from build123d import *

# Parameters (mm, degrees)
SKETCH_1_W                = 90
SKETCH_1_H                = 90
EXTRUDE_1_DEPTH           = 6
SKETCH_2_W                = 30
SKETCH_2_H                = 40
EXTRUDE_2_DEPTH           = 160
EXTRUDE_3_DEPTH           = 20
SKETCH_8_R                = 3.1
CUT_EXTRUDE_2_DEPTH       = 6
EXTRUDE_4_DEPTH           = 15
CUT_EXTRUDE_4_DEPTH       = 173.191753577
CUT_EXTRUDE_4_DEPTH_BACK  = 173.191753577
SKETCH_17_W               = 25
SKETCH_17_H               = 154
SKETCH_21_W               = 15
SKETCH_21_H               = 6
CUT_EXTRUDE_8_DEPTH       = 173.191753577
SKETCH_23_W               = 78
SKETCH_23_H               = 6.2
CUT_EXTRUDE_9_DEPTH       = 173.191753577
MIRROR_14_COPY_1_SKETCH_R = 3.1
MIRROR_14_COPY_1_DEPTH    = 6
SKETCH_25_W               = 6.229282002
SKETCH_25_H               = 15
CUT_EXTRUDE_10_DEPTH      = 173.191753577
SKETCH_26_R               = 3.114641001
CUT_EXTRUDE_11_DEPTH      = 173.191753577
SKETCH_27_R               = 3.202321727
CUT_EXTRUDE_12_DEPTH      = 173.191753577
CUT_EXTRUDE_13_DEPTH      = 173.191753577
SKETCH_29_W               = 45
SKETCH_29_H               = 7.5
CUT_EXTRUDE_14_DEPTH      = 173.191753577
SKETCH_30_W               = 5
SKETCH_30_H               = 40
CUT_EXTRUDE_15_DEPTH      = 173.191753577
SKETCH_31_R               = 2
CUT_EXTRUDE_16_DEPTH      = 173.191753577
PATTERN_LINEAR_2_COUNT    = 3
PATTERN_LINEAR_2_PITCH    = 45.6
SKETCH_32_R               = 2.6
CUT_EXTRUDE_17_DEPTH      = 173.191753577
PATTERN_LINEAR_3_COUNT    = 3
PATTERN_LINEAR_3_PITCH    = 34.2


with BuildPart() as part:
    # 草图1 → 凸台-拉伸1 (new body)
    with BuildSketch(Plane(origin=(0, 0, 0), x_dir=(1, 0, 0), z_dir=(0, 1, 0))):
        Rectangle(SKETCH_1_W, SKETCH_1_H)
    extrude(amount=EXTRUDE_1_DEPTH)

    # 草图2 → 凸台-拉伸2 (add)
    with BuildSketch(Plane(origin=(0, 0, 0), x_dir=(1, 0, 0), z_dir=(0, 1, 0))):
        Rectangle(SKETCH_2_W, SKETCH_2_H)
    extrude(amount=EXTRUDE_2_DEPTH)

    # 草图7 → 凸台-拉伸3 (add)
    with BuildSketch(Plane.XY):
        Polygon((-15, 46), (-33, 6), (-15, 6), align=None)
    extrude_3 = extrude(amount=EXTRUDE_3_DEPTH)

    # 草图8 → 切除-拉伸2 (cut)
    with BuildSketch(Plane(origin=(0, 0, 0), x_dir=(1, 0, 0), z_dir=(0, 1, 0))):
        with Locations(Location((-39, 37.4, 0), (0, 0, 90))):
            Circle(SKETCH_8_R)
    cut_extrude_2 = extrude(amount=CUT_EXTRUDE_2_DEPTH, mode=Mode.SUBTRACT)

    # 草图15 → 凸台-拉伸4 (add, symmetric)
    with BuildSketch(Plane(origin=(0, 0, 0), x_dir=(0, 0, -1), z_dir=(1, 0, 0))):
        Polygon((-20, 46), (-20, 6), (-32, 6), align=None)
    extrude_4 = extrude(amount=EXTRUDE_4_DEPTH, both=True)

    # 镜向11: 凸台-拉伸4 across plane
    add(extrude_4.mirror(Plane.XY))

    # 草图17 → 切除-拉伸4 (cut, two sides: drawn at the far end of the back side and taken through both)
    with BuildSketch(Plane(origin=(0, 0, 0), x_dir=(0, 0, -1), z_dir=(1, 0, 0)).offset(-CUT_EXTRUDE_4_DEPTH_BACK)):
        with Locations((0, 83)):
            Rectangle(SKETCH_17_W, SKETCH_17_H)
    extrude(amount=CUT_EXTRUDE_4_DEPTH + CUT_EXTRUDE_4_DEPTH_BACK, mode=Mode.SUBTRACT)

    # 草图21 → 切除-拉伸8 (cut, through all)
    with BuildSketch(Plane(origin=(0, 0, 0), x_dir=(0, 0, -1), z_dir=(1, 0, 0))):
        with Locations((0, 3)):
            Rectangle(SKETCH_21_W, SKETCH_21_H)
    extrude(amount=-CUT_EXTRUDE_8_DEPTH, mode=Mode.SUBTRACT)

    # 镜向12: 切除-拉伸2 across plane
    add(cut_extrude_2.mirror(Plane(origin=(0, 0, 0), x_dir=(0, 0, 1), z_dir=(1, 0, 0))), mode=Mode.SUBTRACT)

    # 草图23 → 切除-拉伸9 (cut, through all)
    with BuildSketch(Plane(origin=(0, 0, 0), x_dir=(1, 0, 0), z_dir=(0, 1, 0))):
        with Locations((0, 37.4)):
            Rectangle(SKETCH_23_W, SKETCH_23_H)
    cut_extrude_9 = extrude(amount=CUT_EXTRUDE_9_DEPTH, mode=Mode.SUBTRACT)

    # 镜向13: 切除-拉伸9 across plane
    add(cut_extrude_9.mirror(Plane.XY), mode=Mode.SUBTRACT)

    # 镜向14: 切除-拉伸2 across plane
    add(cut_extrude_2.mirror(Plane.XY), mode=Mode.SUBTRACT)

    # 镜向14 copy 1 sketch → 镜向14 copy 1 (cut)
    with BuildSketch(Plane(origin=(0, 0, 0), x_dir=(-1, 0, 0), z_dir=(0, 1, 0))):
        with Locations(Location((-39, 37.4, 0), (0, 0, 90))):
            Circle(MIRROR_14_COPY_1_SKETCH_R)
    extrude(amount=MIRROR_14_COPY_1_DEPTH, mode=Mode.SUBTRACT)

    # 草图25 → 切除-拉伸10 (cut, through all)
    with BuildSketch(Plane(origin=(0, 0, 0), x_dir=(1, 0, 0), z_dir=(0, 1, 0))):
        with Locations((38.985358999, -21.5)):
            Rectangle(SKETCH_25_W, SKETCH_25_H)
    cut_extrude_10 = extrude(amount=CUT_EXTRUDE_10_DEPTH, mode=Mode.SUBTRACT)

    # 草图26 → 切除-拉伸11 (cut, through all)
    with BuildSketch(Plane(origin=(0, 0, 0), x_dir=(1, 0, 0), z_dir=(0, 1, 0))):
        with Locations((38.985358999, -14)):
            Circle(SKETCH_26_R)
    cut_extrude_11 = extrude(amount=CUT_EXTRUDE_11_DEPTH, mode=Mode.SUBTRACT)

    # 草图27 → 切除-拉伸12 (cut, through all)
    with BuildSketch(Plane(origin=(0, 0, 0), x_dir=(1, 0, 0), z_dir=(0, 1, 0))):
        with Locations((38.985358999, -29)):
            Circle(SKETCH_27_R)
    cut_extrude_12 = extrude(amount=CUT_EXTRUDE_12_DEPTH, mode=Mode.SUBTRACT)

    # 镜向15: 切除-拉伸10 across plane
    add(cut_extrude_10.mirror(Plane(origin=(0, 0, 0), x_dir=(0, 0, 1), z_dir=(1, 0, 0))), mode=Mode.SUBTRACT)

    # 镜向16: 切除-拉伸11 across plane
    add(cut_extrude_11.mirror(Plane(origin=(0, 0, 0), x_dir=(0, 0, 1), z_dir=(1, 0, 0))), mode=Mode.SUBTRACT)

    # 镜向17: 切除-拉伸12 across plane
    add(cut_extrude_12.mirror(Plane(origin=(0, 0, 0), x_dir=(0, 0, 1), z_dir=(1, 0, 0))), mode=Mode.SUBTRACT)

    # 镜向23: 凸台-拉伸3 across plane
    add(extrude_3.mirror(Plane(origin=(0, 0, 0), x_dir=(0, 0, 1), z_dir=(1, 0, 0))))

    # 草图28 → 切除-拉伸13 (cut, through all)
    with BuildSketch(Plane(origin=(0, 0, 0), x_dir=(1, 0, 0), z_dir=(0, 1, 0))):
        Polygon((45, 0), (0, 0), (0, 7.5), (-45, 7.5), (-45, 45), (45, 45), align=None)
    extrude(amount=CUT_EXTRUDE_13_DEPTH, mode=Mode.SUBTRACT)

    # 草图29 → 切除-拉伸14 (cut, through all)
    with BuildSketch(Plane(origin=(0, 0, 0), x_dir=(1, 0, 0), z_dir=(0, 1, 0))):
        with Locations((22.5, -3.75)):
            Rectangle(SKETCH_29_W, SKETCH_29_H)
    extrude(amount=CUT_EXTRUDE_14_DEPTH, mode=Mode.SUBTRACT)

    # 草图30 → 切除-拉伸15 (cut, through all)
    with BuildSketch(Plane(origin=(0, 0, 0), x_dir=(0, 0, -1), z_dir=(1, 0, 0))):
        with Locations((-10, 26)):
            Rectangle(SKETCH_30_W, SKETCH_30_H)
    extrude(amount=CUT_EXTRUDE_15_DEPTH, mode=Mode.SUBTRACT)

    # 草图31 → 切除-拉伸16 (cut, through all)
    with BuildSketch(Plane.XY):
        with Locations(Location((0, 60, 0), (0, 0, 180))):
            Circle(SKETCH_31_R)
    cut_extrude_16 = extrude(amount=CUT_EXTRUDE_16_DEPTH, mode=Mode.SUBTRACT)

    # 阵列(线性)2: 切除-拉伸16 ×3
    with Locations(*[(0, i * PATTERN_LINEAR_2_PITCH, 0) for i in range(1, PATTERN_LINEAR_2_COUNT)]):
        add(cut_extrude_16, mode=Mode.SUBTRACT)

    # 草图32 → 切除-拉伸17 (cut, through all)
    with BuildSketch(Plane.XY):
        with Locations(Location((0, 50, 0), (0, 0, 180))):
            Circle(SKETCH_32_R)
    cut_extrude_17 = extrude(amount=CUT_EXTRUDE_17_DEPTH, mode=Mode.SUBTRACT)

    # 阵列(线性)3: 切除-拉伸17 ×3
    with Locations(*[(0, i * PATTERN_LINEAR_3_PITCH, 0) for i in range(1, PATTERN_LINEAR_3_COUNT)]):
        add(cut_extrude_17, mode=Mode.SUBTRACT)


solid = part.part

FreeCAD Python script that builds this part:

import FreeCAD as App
import Part
import Sketcher
Q = App.Units.Quantity


def add_polygon(sketch, points):
    """Adds a closed chain of lines whose ends are joined by coincident constraints."""
    first, n = sketch.GeometryCount, len(points)
    for a, b in zip(points, points[1:] + points[:1]):
        sketch.addGeometry(Part.LineSegment(App.Vector(*a, 0), App.Vector(*b, 0)), False)
    for i in range(n):
        sketch.addConstraint(Sketcher.Constraint("Coincident", first + i, 2, first + (i + 1) % n, 1))

doc = App.newDocument("Part")
body = doc.addObject("PartDesign::Body", "Body")

# Sketch on XZ plane
sketch1 = body.newObject("Sketcher::SketchObject", "Sketch")
sketch1.AttachmentSupport = (doc.getObject("XZ_Plane"), [""])
sketch1.MapMode = "FlatFace"
add_polygon(sketch1, [(-45, -45), (-45, 45), (45, 45), (45, -45)])  # lines 0-3
sketch1.addConstraint([
    Sketcher.Constraint("Vertical", 0),
    Sketcher.Constraint("Horizontal", 1),
    Sketcher.Constraint("Vertical", 2),
    Sketcher.Constraint("Horizontal", 3),
    Sketcher.Constraint("Symmetric", 0, 2, 2, 2, -1, 1),
    Sketcher.Constraint("Equal", 3, 0),
    Sketcher.Constraint("DistanceX", 1, 1, 1, 2, Q("90 mm")),
])
pad1 = body.newObject("PartDesign::Pad", "Pad")
pad1.Profile = sketch1
pad1.Length = 6
pad1.Reversed = True

# Sketch on XZ plane
sketch2 = body.newObject("Sketcher::SketchObject", "Sketch001")
sketch2.AttachmentSupport = (doc.getObject("XZ_Plane"), [""])
sketch2.MapMode = "FlatFace"
add_polygon(sketch2, [(-15, -20), (-15, 20), (15, 20), (15, -20)])  # lines 0-3
sketch2.addConstraint([
    Sketcher.Constraint("Vertical", 0),
    Sketcher.Constraint("Horizontal", 1),
    Sketcher.Constraint("Vertical", 2),
    Sketcher.Constraint("Horizontal", 3),
    Sketcher.Constraint("Symmetric", 0, 2, 2, 2, -1, 1),
    Sketcher.Constraint("DistanceX", 1, 1, 1, 2, Q("30 mm")),
    Sketcher.Constraint("DistanceY", 0, 1, 0, 2, Q("40 mm")),
])
pad2 = body.newObject("PartDesign::Pad", "Pad001")
pad2.Profile = sketch2
pad2.Length = 160
pad2.Reversed = True

# Sketch on XY plane
sketch3 = body.newObject("Sketcher::SketchObject", "Sketch002")
sketch3.AttachmentSupport = (doc.getObject("XY_Plane"), [""])
sketch3.MapMode = "FlatFace"
add_polygon(sketch3, [(-15, 46), (-33, 6), (-15, 6)])  # lines 0-2
sketch3.addConstraint([
    Sketcher.Constraint("Horizontal", 1),
    Sketcher.Constraint("Vertical", 2),
    Sketcher.Constraint("DistanceX", 1, 1, 1, 2, Q("18 mm")),
    Sketcher.Constraint("DistanceY", 2, 1, 2, 2, Q("40 mm")),
    Sketcher.Constraint("DistanceX", 0, 2, -1, 1, Q("33 mm")),
    Sketcher.Constraint("DistanceY", -1, 1, 0, 2, Q("6 mm")),
])
pad3 = body.newObject("PartDesign::Pad", "Pad002")
pad3.Profile = sketch3
pad3.Length = 20

# Sketch on XZ plane
sketch4 = body.newObject("Sketcher::SketchObject", "Sketch003")
sketch4.AttachmentSupport = (doc.getObject("XZ_Plane"), [""])
sketch4.MapMode = "FlatFace"
sketch4.addGeometry(Part.Circle(App.Vector(-39, -37.4, 0), App.Vector(0, 0, 1), 3.1), False)
sketch4.addConstraint([
    Sketcher.Constraint("Diameter", 0, Q("6.2 mm")),
    Sketcher.Constraint("DistanceX", 0, 3, -1, 1, Q("39 mm")),
    Sketcher.Constraint("DistanceY", 0, 3, -1, 1, Q("37.4 mm")),
])
pocket1 = body.newObject("PartDesign::Pocket", "Pocket")
pocket1.Profile = sketch4
pocket1.Length = 6

# Sketch on YZ plane
sketch5 = body.newObject("Sketcher::SketchObject", "Sketch004")
sketch5.AttachmentSupport = (doc.getObject("YZ_Plane"), [""])
sketch5.MapMode = "FlatFace"
add_polygon(sketch5, [(6, 20), (46, 20), (6, 32)])  # lines 0-2
sketch5.addConstraint([
    Sketcher.Constraint("Horizontal", 0),
    Sketcher.Constraint("Vertical", 2),
    Sketcher.Constraint("DistanceX", 0, 1, 0, 2, Q("40 mm")),
    Sketcher.Constraint("DistanceY", 2, 2, 2, 1, Q("12 mm")),
    Sketcher.Constraint("DistanceX", -1, 1, 0, 2, Q("46 mm")),
    Sketcher.Constraint("DistanceY", -1, 1, 0, 2, Q("20 mm")),
])
pad4 = body.newObject("PartDesign::Pad", "Pad003")
pad4.Profile = sketch5
pad4.Length = 30
pad4.Midplane = True
doc.recompute()

mirrored = body.newObject("PartDesign::Mirrored", "Mirrored")
mirrored.Originals = [pad4]
mirrored.MirrorPlane = (doc.getObject("XY_Plane"), [""])
body.Tip = mirrored

# Sketch on YZ plane
sketch6 = body.newObject("Sketcher::SketchObject", "Sketch005")
sketch6.AttachmentSupport = (doc.getObject("YZ_Plane"), [""])
sketch6.MapMode = "FlatFace"
add_polygon(sketch6, [(160, 12), (6, 12), (6, -12), (160, -12)])  # lines 0-3
sketch6.addConstraint([
    Sketcher.Constraint("Horizontal", 0),
    Sketcher.Constraint("Vertical", 1),
    Sketcher.Constraint("Horizontal", 2),
    Sketcher.Constraint("Vertical", 3),
    Sketcher.Constraint("DistanceX", 0, 2, 0, 1, Q("154 mm")),
    Sketcher.Constraint("DistanceY", 1, 2, 1, 1, Q("25 mm")),
    Sketcher.Constraint("DistanceX", -1, 1, 0, 2, Q("6 mm")),
    Sketcher.Constraint("DistanceY", -1, 1, 0, 2, Q("12.5 mm")),
])
pocket2 = body.newObject("PartDesign::Pocket", "Pocket001")
pocket2.Profile = sketch6
pocket2.Type = "ThroughAll"
pocket2.Midplane = True

# Sketch on YZ plane
sketch7 = body.newObject("Sketcher::SketchObject", "Sketch006")
sketch7.AttachmentSupport = (doc.getObject("YZ_Plane"), [""])
sketch7.MapMode = "FlatFace"
add_polygon(sketch7, [(6, 8), (0, 8), (0, -8), (6, -8)])  # lines 0-3
sketch7.addConstraint([
    Sketcher.Constraint("Horizontal", 0),
    Sketcher.Constraint("Vertical", 1),
    Sketcher.Constraint("Horizontal", 2),
    Sketcher.Constraint("Vertical", 3),
    Sketcher.Constraint("Symmetric", 0, 2, 1, 2, -1, 1),
    Sketcher.Constraint("DistanceX", 0, 2, 0, 1, Q("6 mm")),
    Sketcher.Constraint("DistanceY", 1, 2, 1, 1, Q("15 mm")),
])
pocket3 = body.newObject("PartDesign::Pocket", "Pocket002")
pocket3.Profile = sketch7
pocket3.Type = "ThroughAll"
doc.recompute()

mirrored2 = body.newObject("PartDesign::Mirrored", "Mirrored001")
mirrored2.Originals = [pocket1]
mirrored2.MirrorPlane = (doc.getObject("YZ_Plane"), [""])
body.Tip = mirrored2

# Sketch on XZ plane
sketch8 = body.newObject("Sketcher::SketchObject", "Sketch007")
sketch8.AttachmentSupport = (doc.getObject("XZ_Plane"), [""])
sketch8.MapMode = "FlatFace"
add_polygon(sketch8, [(-39, -40), (-39, -34), (39, -34), (39, -40)])  # lines 0-3
sketch8.addConstraint([
    Sketcher.Constraint("Vertical", 0),
    Sketcher.Constraint("Horizontal", 1),
    Sketcher.Constraint("Vertical", 2),
    Sketcher.Constraint("Horizontal", 3),
    Sketcher.Constraint("DistanceX", 1, 1, 1, 2, Q("78 mm")),
    Sketcher.Constraint("DistanceY", 0, 1, 0, 2, Q("6.2 mm")),
    Sketcher.Constraint("DistanceX", 0, 2, -1, 1, Q("39 mm")),
    Sketcher.Constraint("DistanceY", 0, 2, -1, 1, Q("34.3 mm")),
])
pocket4 = body.newObject("PartDesign::Pocket", "Pocket003")
pocket4.Profile = sketch8
pocket4.Type = "ThroughAll"
doc.recompute()

mirrored3 = body.newObject("PartDesign::Mirrored", "Mirrored002")
mirrored3.Originals = [pocket4]
mirrored3.MirrorPlane = (doc.getObject("XY_Plane"), [""])
body.Tip = mirrored3
doc.recompute()

mirrored4 = body.newObject("PartDesign::Mirrored", "Mirrored003")
mirrored4.Originals = [pocket1]
mirrored4.MirrorPlane = (doc.getObject("XY_Plane"), [""])
body.Tip = mirrored4

# Sketch on XZ plane
sketch9 = body.newObject("Sketcher::SketchObject", "Sketch008")
sketch9.AttachmentSupport = (doc.getObject("XZ_Plane"), [""])
sketch9.MapMode = "FlatFace"
sketch9.addGeometry(Part.Circle(App.Vector(39, 37.4, 0), App.Vector(0, 0, 1), 3.1), False)
sketch9.addConstraint([
    Sketcher.Constraint("Diameter", 0, Q("6.2 mm")),
    Sketcher.Constraint("DistanceX", -1, 1, 0, 3, Q("39 mm")),
    Sketcher.Constraint("DistanceY", -1, 1, 0, 3, Q("37.4 mm")),
])
pocket5 = body.newObject("PartDesign::Pocket", "Pocket004")
pocket5.Profile = sketch9
pocket5.Length = 6

# Sketch on XZ plane
sketch10 = body.newObject("Sketcher::SketchObject", "Sketch009")
sketch10.AttachmentSupport = (doc.getObject("XZ_Plane"), [""])
sketch10.MapMode = "FlatFace"
add_polygon(sketch10, [(36, 14), (36, 29), (42, 29), (42, 14)])  # lines 0-3
sketch10.addConstraint([
    Sketcher.Constraint("Vertical", 0),
    Sketcher.Constraint("Horizontal", 1),
    Sketcher.Constraint("Vertical", 2),
    Sketcher.Constraint("Horizontal", 3),
    Sketcher.Constraint("DistanceY", 0, 1, 0, 2, Q("15 mm")),
    Sketcher.Constraint("DistanceY", -1, 1, 0, 2, Q("29 mm")),
    Sketcher.Constraint("DistanceX", -1, 1, 1, 2, Q("42.1 mm")),
    Sketcher.Constraint("DistanceX", 1, 1, 1, 2, Q("6.229282 mm")),
])
pocket6 = body.newObject("PartDesign::Pocket", "Pocket005")
pocket6.Profile = sketch10
pocket6.Type = "ThroughAll"

# Sketch on XZ plane
sketch11 = body.newObject("Sketcher::SketchObject", "Sketch010")
sketch11.AttachmentSupport = (doc.getObject("XZ_Plane"), [""])
sketch11.MapMode = "FlatFace"
sketch11.addGeometry(Part.Circle(App.Vector(39, 14, 0), App.Vector(0, 0, 1), 3.1), False)
sketch11.addConstraint([
    Sketcher.Constraint("DistanceY", -1, 1, 0, 3, Q("14 mm")),
    Sketcher.Constraint("Diameter", 0, Q("6.229282 mm")),
    Sketcher.Constraint("DistanceX", -1, 1, 0, 3, Q("38.985359 mm")),
])
pocket7 = body.newObject("PartDesign::Pocket", "Pocket006")
pocket7.Profile = sketch11
pocket7.Type = "ThroughAll"

# Sketch on XZ plane
sketch12 = body.newObject("Sketcher::SketchObject", "Sketch011")
sketch12.AttachmentSupport = (doc.getObject("XZ_Plane"), [""])
sketch12.MapMode = "FlatFace"
sketch12.addGeometry(Part.Circle(App.Vector(39, 29, 0), App.Vector(0, 0, 1), 3.2), False)
sketch12.addConstraint([
    Sketcher.Constraint("DistanceY", -1, 1, 0, 3, Q("29 mm")),
    Sketcher.Constraint("Diameter", 0, Q("6.404643 mm")),
    Sketcher.Constraint("DistanceX", -1, 1, 0, 3, Q("38.985359 mm")),
])
pocket8 = body.newObject("PartDesign::Pocket", "Pocket007")
pocket8.Profile = sketch12
pocket8.Type = "ThroughAll"
doc.recompute()

mirrored5 = body.newObject("PartDesign::Mirrored", "Mirrored004")
mirrored5.Originals = [pocket6]
mirrored5.MirrorPlane = (doc.getObject("YZ_Plane"), [""])
body.Tip = mirrored5
doc.recompute()

mirrored6 = body.newObject("PartDesign::Mirrored", "Mirrored005")
mirrored6.Originals = [pocket7]
mirrored6.MirrorPlane = (doc.getObject("YZ_Plane"), [""])
body.Tip = mirrored6
doc.recompute()

mirrored7 = body.newObject("PartDesign::Mirrored", "Mirrored006")
mirrored7.Originals = [pocket8]
mirrored7.MirrorPlane = (doc.getObject("YZ_Plane"), [""])
body.Tip = mirrored7
doc.recompute()

mirrored8 = body.newObject("PartDesign::Mirrored", "Mirrored007")
mirrored8.Originals = [pad3]
mirrored8.MirrorPlane = (doc.getObject("YZ_Plane"), [""])
body.Tip = mirrored8

# Sketch on XZ plane
sketch13 = body.newObject("Sketcher::SketchObject", "Sketch012")
sketch13.AttachmentSupport = (doc.getObject("XZ_Plane"), [""])
sketch13.MapMode = "FlatFace"
add_polygon(sketch13, [(0, 0), (45, 0), (45, -45), (-45, -45), (-45, -8), (0, -8)])  # lines 0-5
sketch13.addConstraint([
    Sketcher.Constraint("Horizontal", 0),
    Sketcher.Constraint("Vertical", 1),
    Sketcher.Constraint("Horizontal", 2),
    Sketcher.Constraint("Vertical", 3),
    Sketcher.Constraint("Horizontal", 4),
    Sketcher.Constraint("Vertical", 5),
    Sketcher.Constraint("Coincident", 5, 2, -1, 1),
    Sketcher.Constraint("Equal", 0, 4),
    Sketcher.Constraint("Equal", 4, 1),
    Sketcher.Constraint("DistanceX", 0, 1, 0, 2, Q("45 mm")),
    Sketcher.Constraint("DistanceY", 3, 1, 3, 2, Q("37.5 mm")),
])
pocket9 = body.newObject("PartDesign::Pocket", "Pocket008")
pocket9.Profile = sketch13
pocket9.Type = "ThroughAll"

# Sketch on XZ plane
sketch14 = body.newObject("Sketcher::SketchObject", "Sketch013")
sketch14.AttachmentSupport = (doc.getObject("XZ_Plane"), [""])
sketch14.MapMode = "FlatFace"
add_polygon(sketch14, [(0, 0), (0, 8), (45, 8), (45, 0)])  # lines 0-3
sketch14.addConstraint([
    Sketcher.Constraint("Vertical", 0),
    Sketcher.Constraint("Horizontal", 1),
    Sketcher.Constraint("Vertical", 2),
    Sketcher.Constraint("Horizontal", 3),
    Sketcher.Constraint("Coincident", 3, 2, -1, 1),
    Sketcher.Constraint("DistanceX", 1, 1, 1, 2, Q("45 mm")),
    Sketcher.Constraint("DistanceY", 0, 1, 0, 2, Q("7.5 mm")),
])
pocket10 = body.newObject("PartDesign::Pocket", "Pocket009")
pocket10.Profile = sketch14
pocket10.Type = "ThroughAll"

# Sketch on YZ plane
sketch15 = body.newObject("Sketcher::SketchObject", "Sketch014")
sketch15.AttachmentSupport = (doc.getObject("YZ_Plane"), [""])
sketch15.MapMode = "FlatFace"
add_polygon(sketch15, [(46, 12), (6, 12), (6, 8), (46, 8)])  # lines 0-3
sketch15.addConstraint([
    Sketcher.Constraint("Horizontal", 0),
    Sketcher.Constraint("Vertical", 1),
    Sketcher.Constraint("Horizontal", 2),
    Sketcher.Constraint("Vertical", 3),
    Sketcher.Constraint("DistanceX", 0, 2, 0, 1, Q("40 mm")),
    Sketcher.Constraint("DistanceY", 1, 2, 1, 1, Q("5 mm")),
    Sketcher.Constraint("DistanceX", -1, 1, 0, 2, Q("6 mm")),
    Sketcher.Constraint("DistanceY", -1, 1, 0, 2, Q("12.5 mm")),
])
pocket11 = body.newObject("PartDesign::Pocket", "Pocket010")
pocket11.Profile = sketch15
pocket11.Type = "ThroughAll"
pocket11.Reversed = True

# Sketch on XY plane
sketch16 = body.newObject("Sketcher::SketchObject", "Sketch015")
sketch16.AttachmentSupport = (doc.getObject("XY_Plane"), [""])
sketch16.MapMode = "FlatFace"
sketch16.addGeometry(Part.Circle(App.Vector(0, 60, 0), App.Vector(0, 0, 1), 2), False)
sketch16.addConstraint([
    Sketcher.Constraint("PointOnObject", 0, 3, -2),
    Sketcher.Constraint("Diameter", 0, Q("4 mm")),
    Sketcher.Constraint("DistanceY", -1, 1, 0, 3, Q("60 mm")),
])
pocket12 = body.newObject("PartDesign::Pocket", "Pocket011")
pocket12.Profile = sketch16
pocket12.Type = "ThroughAll"
pocket12.Reversed = True
doc.recompute()

linearpattern = body.newObject("PartDesign::LinearPattern", "LinearPattern")
linearpattern.Originals = [pocket12]
linearpattern.Direction = (doc.getObject("Y_Axis"), [""])
linearpattern.Mode = "offset"
linearpattern.Offset = 45.6
linearpattern.Occurrences = 3
body.Tip = linearpattern

# Sketch on XY plane
sketch17 = body.newObject("Sketcher::SketchObject", "Sketch016")
sketch17.AttachmentSupport = (doc.getObject("XY_Plane"), [""])
sketch17.MapMode = "FlatFace"
sketch17.addGeometry(Part.Circle(App.Vector(0, 50, 0), App.Vector(0, 0, 1), 2.6), False)
sketch17.addConstraint([
    Sketcher.Constraint("PointOnObject", 0, 3, -2),
    Sketcher.Constraint("Diameter", 0, Q("5.2 mm")),
    Sketcher.Constraint("DistanceY", -1, 1, 0, 3, Q("50 mm")),
])
pocket13 = body.newObject("PartDesign::Pocket", "Pocket012")
pocket13.Profile = sketch17
pocket13.Type = "ThroughAll"
pocket13.Reversed = True
doc.recompute()

linearpattern2 = body.newObject("PartDesign::LinearPattern", "LinearPattern001")
linearpattern2.Originals = [pocket13]
linearpattern2.Direction = (doc.getObject("Y_Axis"), [""])
linearpattern2.Mode = "offset"
linearpattern2.Offset = 34.2
linearpattern2.Occurrences = 3
body.Tip = linearpattern2

doc.recompute()
